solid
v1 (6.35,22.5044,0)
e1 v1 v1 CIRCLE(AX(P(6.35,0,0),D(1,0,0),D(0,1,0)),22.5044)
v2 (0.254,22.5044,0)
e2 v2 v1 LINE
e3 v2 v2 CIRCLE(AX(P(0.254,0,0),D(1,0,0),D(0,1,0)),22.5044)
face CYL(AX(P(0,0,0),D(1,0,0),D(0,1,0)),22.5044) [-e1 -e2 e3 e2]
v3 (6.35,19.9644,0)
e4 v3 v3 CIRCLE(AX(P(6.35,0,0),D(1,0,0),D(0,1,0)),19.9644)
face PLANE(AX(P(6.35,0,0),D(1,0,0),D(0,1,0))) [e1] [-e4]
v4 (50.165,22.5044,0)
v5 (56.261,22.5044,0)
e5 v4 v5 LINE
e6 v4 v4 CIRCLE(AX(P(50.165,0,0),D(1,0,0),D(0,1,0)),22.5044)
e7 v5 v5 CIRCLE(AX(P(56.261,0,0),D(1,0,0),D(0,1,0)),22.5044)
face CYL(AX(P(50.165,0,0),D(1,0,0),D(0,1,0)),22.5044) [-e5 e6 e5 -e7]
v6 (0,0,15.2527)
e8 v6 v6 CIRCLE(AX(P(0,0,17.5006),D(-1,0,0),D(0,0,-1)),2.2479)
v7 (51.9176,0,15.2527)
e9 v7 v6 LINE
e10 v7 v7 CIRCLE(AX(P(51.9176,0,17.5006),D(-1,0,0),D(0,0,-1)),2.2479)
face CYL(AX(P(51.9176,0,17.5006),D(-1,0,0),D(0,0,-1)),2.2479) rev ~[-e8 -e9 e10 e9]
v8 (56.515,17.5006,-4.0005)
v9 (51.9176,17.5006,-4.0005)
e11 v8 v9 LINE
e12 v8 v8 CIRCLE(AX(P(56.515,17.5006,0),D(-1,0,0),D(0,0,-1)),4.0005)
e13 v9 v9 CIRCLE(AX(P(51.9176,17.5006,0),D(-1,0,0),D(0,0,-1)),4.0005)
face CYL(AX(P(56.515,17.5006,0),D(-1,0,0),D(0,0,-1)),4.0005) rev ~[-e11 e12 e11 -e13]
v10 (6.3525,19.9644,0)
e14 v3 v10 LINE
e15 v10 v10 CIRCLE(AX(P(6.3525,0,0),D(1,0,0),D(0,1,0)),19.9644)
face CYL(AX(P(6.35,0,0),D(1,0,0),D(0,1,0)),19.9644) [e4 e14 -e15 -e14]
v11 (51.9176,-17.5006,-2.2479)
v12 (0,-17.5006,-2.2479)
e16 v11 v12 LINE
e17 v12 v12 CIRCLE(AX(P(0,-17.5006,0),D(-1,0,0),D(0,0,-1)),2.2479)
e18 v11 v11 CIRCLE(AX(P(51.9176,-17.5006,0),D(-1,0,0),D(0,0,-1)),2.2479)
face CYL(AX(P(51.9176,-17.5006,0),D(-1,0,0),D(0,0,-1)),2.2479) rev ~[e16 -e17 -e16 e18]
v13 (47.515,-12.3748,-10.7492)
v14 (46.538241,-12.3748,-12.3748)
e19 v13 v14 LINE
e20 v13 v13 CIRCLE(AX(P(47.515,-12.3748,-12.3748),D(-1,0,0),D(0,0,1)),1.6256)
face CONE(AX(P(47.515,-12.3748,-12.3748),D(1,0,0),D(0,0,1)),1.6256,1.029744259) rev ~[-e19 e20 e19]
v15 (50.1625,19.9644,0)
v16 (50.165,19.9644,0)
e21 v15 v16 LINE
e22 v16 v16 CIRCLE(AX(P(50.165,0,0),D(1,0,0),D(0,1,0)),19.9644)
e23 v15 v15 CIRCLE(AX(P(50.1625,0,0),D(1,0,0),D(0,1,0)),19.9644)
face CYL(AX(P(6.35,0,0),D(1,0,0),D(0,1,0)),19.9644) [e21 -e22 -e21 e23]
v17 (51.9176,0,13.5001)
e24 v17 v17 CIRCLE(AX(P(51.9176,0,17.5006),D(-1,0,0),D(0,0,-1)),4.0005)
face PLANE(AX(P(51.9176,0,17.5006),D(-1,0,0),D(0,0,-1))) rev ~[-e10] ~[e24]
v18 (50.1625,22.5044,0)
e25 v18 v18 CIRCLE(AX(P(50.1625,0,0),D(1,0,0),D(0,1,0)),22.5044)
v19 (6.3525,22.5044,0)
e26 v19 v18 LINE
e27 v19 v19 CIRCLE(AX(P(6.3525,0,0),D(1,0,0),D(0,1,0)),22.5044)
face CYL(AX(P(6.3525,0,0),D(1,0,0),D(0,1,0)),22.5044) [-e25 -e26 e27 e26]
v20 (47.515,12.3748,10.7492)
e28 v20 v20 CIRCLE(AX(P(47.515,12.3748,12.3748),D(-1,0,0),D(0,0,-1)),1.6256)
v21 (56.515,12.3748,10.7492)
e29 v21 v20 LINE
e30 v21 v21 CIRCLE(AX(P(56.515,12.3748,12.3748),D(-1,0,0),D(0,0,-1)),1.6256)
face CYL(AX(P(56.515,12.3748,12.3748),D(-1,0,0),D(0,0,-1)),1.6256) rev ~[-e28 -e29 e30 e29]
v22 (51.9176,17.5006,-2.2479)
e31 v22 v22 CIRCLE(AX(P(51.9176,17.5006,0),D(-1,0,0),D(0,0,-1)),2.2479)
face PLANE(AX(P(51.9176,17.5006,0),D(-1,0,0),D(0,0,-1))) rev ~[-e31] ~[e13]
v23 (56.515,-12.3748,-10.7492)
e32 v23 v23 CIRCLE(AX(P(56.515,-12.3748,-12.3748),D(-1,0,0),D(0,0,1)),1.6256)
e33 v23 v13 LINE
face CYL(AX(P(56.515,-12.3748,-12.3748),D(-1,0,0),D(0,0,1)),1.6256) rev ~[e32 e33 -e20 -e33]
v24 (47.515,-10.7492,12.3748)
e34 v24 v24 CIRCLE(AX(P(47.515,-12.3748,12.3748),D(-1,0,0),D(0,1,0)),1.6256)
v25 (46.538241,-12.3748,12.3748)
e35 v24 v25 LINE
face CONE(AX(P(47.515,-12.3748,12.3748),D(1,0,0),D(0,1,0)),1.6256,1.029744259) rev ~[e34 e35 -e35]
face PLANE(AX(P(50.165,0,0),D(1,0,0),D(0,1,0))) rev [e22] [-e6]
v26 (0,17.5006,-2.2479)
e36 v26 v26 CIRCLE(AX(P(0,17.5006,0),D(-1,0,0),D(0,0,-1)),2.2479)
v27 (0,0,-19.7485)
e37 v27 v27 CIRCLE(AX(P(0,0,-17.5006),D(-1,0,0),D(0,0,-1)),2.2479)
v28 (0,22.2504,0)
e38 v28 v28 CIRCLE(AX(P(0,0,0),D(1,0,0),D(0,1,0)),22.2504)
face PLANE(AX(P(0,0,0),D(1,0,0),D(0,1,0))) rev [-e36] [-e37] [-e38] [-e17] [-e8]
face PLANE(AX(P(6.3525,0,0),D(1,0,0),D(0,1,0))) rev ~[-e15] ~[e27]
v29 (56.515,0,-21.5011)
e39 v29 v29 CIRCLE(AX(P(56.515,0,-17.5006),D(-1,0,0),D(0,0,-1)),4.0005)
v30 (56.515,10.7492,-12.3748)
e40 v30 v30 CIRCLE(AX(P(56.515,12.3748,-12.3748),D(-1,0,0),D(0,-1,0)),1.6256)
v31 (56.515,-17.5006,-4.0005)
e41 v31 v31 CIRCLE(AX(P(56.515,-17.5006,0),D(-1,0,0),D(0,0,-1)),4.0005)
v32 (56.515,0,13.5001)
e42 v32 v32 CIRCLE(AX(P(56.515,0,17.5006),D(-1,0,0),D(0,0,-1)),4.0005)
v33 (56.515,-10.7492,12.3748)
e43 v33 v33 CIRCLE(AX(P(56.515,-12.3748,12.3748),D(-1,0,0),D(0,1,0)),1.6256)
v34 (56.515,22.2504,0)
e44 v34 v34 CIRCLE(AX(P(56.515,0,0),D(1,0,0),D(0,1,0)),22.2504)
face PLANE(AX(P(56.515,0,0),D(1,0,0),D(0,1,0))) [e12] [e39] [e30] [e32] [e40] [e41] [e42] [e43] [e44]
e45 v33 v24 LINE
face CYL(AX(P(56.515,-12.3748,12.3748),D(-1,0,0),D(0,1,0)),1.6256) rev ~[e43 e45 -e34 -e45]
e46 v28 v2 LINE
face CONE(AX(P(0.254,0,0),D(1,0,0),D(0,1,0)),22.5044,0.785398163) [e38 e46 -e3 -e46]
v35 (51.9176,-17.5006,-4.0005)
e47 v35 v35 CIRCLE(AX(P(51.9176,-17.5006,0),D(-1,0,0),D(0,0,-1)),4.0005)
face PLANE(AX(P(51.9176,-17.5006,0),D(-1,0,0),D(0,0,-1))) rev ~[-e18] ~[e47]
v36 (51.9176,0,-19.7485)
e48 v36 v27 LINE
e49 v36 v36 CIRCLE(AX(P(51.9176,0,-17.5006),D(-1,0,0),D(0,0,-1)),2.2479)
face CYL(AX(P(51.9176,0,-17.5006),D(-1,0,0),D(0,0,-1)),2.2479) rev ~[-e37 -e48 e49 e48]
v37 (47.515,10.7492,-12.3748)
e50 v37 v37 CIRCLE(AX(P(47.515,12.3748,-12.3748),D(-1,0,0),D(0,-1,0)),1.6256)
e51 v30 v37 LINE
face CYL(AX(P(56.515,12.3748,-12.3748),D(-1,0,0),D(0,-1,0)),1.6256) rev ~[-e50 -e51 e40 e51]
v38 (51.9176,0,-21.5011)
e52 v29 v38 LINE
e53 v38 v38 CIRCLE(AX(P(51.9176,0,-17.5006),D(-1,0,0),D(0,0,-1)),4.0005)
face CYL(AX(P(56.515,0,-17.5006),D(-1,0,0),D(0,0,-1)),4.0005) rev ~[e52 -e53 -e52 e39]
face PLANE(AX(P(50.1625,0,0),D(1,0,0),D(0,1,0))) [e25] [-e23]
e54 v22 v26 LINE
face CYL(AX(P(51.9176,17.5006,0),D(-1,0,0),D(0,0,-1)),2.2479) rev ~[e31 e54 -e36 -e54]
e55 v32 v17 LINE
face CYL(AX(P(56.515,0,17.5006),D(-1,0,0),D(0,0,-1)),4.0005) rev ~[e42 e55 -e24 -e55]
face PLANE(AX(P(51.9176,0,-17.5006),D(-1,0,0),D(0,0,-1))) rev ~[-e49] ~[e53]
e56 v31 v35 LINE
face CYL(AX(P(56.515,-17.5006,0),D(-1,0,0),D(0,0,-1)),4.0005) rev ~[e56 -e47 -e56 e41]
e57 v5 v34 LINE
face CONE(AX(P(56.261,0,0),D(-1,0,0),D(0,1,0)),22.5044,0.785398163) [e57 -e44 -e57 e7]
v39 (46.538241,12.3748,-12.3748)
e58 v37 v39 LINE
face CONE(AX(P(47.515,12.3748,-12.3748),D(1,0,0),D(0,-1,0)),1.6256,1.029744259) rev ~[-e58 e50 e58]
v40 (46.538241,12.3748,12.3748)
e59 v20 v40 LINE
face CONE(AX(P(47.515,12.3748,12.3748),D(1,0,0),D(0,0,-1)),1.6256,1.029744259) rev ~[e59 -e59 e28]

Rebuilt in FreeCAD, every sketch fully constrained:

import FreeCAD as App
import Part
import Sketcher
from FreeCAD import Vector
Q = App.Units.Quantity


def edges_at(feature, points):
    """Names of the edges that pass closest to the given points."""
    edges = feature.Shape.Edges
    near = lambda p: min(range(len(edges)), key=lambda i: edges[i].distToShape(Part.Vertex(*p))[0])
    return sorted({f"Edge{near(p) + 1}" for p in points})

doc = App.newDocument("Part")
body = doc.addObject("PartDesign::Body", "Body")

# Sketch on XY plane
sketch1 = body.newObject("Sketcher::SketchObject", "Sketch")
sketch1.AttachmentSupport = (doc.getObject("XY_Plane"), [""])
sketch1.MapMode = "FlatFace"
sketch1.addGeometry(Part.LineSegment(Vector(0, 22.5, 0), Vector(0, 0, 0)), False)
sketch1.addGeometry(Part.LineSegment(Vector(0, 0, 0), Vector(56.5, 0, 0)), False)
sketch1.addGeometry(Part.LineSegment(Vector(56.5, 0, 0), Vector(56.5, 22.5, 0)), False)
sketch1.addGeometry(Part.LineSegment(Vector(56.5, 22.5, 0), Vector(50.2, 22.5, 0)), False)
sketch1.addGeometry(Part.LineSegment(Vector(50.2, 22.5, 0), Vector(50.2, 20, 0)), False)
sketch1.addGeometry(Part.LineSegment(Vector(50.2, 20, 0), Vector(6.3, 20, 0)), False)
sketch1.addGeometry(Part.LineSegment(Vector(6.3, 20, 0), Vector(6.3, 22.5, 0)), False)
sketch1.addGeometry(Part.LineSegment(Vector(6.3, 22.5, 0), Vector(0, 22.5, 0)), False)
sketch1.addConstraint(Sketcher.Constraint("Coincident", 0, 2, 1, 1))
sketch1.addConstraint(Sketcher.Constraint("Coincident", 1, 2, 2, 1))
sketch1.addConstraint(Sketcher.Constraint("Coincident", 2, 2, 3, 1))
sketch1.addConstraint(Sketcher.Constraint("Coincident", 3, 2, 4, 1))
sketch1.addConstraint(Sketcher.Constraint("Coincident", 4, 2, 5, 1))
sketch1.addConstraint(Sketcher.Constraint("Coincident", 5, 2, 6, 1))
sketch1.addConstraint(Sketcher.Constraint("Coincident", 6, 2, 7, 1))
sketch1.addConstraint(Sketcher.Constraint("Coincident", 7, 2, 0, 1))
sketch1.addConstraint(Sketcher.Constraint("Vertical", 0))
sketch1.addConstraint(Sketcher.Constraint("Horizontal", 1))
sketch1.addConstraint(Sketcher.Constraint("Vertical", 2))
sketch1.addConstraint(Sketcher.Constraint("Horizontal", 3))
sketch1.addConstraint(Sketcher.Constraint("Vertical", 4))
sketch1.addConstraint(Sketcher.Constraint("Horizontal", 5))
sketch1.addConstraint(Sketcher.Constraint("Vertical", 6))
sketch1.addConstraint(Sketcher.Constraint("Horizontal", 7))
sketch1.addConstraint(Sketcher.Constraint("Coincident", 0, 2, -1, 1))
sketch1.addConstraint(Sketcher.Constraint("Horizontal", 3, 2, 6, 2))
sketch1.addConstraint(Sketcher.Constraint("Equal", 3, 7))
sketch1.addConstraint(Sketcher.Constraint("DistanceY", 4, 2, 4, 1, Q("0.1 in")))
sketch1.addConstraint(Sketcher.Constraint("DistanceX", 3, 2, 3, 1, Q("0.25 in")))
sketch1.addConstraint(Sketcher.Constraint("DistanceX", 5, 2, 5, 1, Q("1.725 in")))
sketch1.addConstraint(Sketcher.Constraint("DistanceY", 0, 2, 0, 1, Q("0.886 in")))
revolution = body.newObject("PartDesign::Revolution", "Revolution")
revolution.Profile = sketch1
revolution.ReferenceAxis = (sketch1, ["H_Axis"])
revolution.Angle = 360

# Sketch on XY plane
sketch2 = body.newObject("Sketcher::SketchObject", "Sketch001")
sketch2.AttachmentSupport = (doc.getObject("XY_Plane"), [""])
sketch2.MapMode = "FlatFace"
sketch2.addGeometry(Part.LineSegment(Vector(6.4, 22.5, 0), Vector(6.4, 20, 0)), False)
sketch2.addGeometry(Part.LineSegment(Vector(6.4, 20, 0), Vector(50.2, 20, 0)), False)
sketch2.addGeometry(Part.LineSegment(Vector(50.2, 20, 0), Vector(50.2, 22.5, 0)), False)
sketch2.addGeometry(Part.LineSegment(Vector(50.2, 22.5, 0), Vector(6.4, 22.5, 0)), False)
sketch2.addConstraint(Sketcher.Constraint("Coincident", 0, 2, 1, 1))
sketch2.addConstraint(Sketcher.Constraint("Coincident", 1, 2, 2, 1))
sketch2.addConstraint(Sketcher.Constraint("Coincident", 2, 2, 3, 1))
sketch2.addConstraint(Sketcher.Constraint("Coincident", 3, 2, 0, 1))
sketch2.addConstraint(Sketcher.Constraint("Vertical", 0))
sketch2.addConstraint(Sketcher.Constraint("Horizontal", 1))
sketch2.addConstraint(Sketcher.Constraint("Vertical", 2))
sketch2.addConstraint(Sketcher.Constraint("Horizontal", 3))
sketch2.addConstraint(Sketcher.Constraint("DistanceY", 0, 2, 0, 1, Q("0.1 in")))
sketch2.addConstraint(Sketcher.Constraint("DistanceX", 1, 1, 1, 2, Q("1.7248 in")))
sketch2.addConstraint(Sketcher.Constraint("DistanceY", -1, 1, 0, 2, Q("0.786 in")))
sketch2.addConstraint(Sketcher.Constraint("DistanceX", -1, 1, 0, 2, Q("0.2501 in")))
revolution2 = body.newObject("PartDesign::Revolution", "Revolution001")
revolution2.Profile = sketch2
revolution2.ReferenceAxis = (sketch2, ["H_Axis"])
revolution2.Angle = 360
doc.recompute()

chamfer = body.newObject("PartDesign::Chamfer", "Chamfer")
chamfer.Base = (revolution2, edges_at(revolution2, [(56.515, -22.504, 0), (0, -22.504, 0)]))
chamfer.Size = Q("0.01 in")

# Sketch on YZ plane
sketch3 = body.newObject("Sketcher::SketchObject", "Sketch002")
sketch3.AttachmentSupport = (doc.getObject("YZ_Plane"), [""])
sketch3.MapMode = "FlatFace"
sketch3.AttachmentOffset = App.Placement(Vector(0, 0, 2.225 * 25.4), App.Rotation())
sketch3.addGeometry(Part.Circle(Vector(17.5, 0, 0), Vector(0, 0, 1), 2.2), False)
sketch3.addGeometry(Part.Circle(Vector(-17.5, 0, 0), Vector(0, 0, 1), 2.2), False)
sketch3.addGeometry(Part.Circle(Vector(0, 17.5, 0), Vector(0, 0, 1), 2.2), False)
sketch3.addGeometry(Part.Circle(Vector(0, -17.5, 0), Vector(0, 0, 1), 2.2), False)
sketch3.addConstraint(Sketcher.Constraint("Equal", 0, 1))
sketch3.addConstraint(Sketcher.Constraint("Equal", 1, 2))
sketch3.addConstraint(Sketcher.Constraint("Equal", 2, 3))
sketch3.addConstraint(Sketcher.Constraint("Symmetric", 0, 3, 1, 3, -1, 1))
sketch3.addConstraint(Sketcher.Constraint("Symmetric", 2, 3, 3, 3, -1, 1))
sketch3.addConstraint(Sketcher.Constraint("PointOnObject", 0, 3, -1))
sketch3.addConstraint(Sketcher.Constraint("PointOnObject", 2, 3, -2))
sketch3.addConstraint(Sketcher.Constraint("Diameter", 0, Q("0.177 in")))
sketch3.addConstraint(Sketcher.Constraint("DistanceX", -1, 1, 0, 3, Q("0.689 in")))
sketch3.addConstraint(Sketcher.Constraint("DistanceY", -1, 1, 2, 3, Q("0.689 in")))
doc.recompute()
hole = body.newObject("PartDesign::Hole", "Hole")
hole.Profile = sketch3
hole.ThreadType = "None"
hole.Diameter = Q("0.177 in")
hole.DepthType = "ThroughAll"
hole.HoleCutType = "Counterbore"
hole.HoleCutDiameter = Q("0.315 in")
hole.HoleCutDepth = Q("0.181 in")

# Sketch on YZ plane
sketch4 = body.newObject("Sketcher::SketchObject", "Sketch003")
sketch4.AttachmentSupport = (doc.getObject("YZ_Plane"), [""])
sketch4.MapMode = "FlatFace"
sketch4.AttachmentOffset = App.Placement(Vector(0, 0, 2.225 * 25.4), App.Rotation())
sketch4.addGeometry(Part.Circle(Vector(12.4, 12.4, 0), Vector(0, 0, 1), 1.6), False)
sketch4.addConstraint(Sketcher.Constraint("Diameter", 0, Q("0.128 in")))
sketch4.addConstraint(Sketcher.Constraint("DistanceX", -1, 1, 0, 3, Q("0.4872 in")))
sketch4.addConstraint(Sketcher.Constraint("DistanceY", -1, 1, 0, 3, Q("0.4872 in")))
doc.recompute()
hole2 = body.newObject("PartDesign::Hole", "Hole001")
hole2.Profile = sketch4
hole2.ThreadType = "None"
hole2.Diameter = Q("0.128 in")
hole2.DepthType = "Dimension"
hole2.Depth = 9
hole2.DrillPoint = "Angled"
hole2.DrillPointAngle = 118
doc.recompute()

polarpattern = body.newObject("PartDesign::PolarPattern", "PolarPattern")
polarpattern.Originals = [hole2]
polarpattern.Axis = (doc.getObject("X_Axis"), [""])
polarpattern.Angle = 360
polarpattern.Occurrences = 4
body.Tip = polarpattern

doc.recompute()
